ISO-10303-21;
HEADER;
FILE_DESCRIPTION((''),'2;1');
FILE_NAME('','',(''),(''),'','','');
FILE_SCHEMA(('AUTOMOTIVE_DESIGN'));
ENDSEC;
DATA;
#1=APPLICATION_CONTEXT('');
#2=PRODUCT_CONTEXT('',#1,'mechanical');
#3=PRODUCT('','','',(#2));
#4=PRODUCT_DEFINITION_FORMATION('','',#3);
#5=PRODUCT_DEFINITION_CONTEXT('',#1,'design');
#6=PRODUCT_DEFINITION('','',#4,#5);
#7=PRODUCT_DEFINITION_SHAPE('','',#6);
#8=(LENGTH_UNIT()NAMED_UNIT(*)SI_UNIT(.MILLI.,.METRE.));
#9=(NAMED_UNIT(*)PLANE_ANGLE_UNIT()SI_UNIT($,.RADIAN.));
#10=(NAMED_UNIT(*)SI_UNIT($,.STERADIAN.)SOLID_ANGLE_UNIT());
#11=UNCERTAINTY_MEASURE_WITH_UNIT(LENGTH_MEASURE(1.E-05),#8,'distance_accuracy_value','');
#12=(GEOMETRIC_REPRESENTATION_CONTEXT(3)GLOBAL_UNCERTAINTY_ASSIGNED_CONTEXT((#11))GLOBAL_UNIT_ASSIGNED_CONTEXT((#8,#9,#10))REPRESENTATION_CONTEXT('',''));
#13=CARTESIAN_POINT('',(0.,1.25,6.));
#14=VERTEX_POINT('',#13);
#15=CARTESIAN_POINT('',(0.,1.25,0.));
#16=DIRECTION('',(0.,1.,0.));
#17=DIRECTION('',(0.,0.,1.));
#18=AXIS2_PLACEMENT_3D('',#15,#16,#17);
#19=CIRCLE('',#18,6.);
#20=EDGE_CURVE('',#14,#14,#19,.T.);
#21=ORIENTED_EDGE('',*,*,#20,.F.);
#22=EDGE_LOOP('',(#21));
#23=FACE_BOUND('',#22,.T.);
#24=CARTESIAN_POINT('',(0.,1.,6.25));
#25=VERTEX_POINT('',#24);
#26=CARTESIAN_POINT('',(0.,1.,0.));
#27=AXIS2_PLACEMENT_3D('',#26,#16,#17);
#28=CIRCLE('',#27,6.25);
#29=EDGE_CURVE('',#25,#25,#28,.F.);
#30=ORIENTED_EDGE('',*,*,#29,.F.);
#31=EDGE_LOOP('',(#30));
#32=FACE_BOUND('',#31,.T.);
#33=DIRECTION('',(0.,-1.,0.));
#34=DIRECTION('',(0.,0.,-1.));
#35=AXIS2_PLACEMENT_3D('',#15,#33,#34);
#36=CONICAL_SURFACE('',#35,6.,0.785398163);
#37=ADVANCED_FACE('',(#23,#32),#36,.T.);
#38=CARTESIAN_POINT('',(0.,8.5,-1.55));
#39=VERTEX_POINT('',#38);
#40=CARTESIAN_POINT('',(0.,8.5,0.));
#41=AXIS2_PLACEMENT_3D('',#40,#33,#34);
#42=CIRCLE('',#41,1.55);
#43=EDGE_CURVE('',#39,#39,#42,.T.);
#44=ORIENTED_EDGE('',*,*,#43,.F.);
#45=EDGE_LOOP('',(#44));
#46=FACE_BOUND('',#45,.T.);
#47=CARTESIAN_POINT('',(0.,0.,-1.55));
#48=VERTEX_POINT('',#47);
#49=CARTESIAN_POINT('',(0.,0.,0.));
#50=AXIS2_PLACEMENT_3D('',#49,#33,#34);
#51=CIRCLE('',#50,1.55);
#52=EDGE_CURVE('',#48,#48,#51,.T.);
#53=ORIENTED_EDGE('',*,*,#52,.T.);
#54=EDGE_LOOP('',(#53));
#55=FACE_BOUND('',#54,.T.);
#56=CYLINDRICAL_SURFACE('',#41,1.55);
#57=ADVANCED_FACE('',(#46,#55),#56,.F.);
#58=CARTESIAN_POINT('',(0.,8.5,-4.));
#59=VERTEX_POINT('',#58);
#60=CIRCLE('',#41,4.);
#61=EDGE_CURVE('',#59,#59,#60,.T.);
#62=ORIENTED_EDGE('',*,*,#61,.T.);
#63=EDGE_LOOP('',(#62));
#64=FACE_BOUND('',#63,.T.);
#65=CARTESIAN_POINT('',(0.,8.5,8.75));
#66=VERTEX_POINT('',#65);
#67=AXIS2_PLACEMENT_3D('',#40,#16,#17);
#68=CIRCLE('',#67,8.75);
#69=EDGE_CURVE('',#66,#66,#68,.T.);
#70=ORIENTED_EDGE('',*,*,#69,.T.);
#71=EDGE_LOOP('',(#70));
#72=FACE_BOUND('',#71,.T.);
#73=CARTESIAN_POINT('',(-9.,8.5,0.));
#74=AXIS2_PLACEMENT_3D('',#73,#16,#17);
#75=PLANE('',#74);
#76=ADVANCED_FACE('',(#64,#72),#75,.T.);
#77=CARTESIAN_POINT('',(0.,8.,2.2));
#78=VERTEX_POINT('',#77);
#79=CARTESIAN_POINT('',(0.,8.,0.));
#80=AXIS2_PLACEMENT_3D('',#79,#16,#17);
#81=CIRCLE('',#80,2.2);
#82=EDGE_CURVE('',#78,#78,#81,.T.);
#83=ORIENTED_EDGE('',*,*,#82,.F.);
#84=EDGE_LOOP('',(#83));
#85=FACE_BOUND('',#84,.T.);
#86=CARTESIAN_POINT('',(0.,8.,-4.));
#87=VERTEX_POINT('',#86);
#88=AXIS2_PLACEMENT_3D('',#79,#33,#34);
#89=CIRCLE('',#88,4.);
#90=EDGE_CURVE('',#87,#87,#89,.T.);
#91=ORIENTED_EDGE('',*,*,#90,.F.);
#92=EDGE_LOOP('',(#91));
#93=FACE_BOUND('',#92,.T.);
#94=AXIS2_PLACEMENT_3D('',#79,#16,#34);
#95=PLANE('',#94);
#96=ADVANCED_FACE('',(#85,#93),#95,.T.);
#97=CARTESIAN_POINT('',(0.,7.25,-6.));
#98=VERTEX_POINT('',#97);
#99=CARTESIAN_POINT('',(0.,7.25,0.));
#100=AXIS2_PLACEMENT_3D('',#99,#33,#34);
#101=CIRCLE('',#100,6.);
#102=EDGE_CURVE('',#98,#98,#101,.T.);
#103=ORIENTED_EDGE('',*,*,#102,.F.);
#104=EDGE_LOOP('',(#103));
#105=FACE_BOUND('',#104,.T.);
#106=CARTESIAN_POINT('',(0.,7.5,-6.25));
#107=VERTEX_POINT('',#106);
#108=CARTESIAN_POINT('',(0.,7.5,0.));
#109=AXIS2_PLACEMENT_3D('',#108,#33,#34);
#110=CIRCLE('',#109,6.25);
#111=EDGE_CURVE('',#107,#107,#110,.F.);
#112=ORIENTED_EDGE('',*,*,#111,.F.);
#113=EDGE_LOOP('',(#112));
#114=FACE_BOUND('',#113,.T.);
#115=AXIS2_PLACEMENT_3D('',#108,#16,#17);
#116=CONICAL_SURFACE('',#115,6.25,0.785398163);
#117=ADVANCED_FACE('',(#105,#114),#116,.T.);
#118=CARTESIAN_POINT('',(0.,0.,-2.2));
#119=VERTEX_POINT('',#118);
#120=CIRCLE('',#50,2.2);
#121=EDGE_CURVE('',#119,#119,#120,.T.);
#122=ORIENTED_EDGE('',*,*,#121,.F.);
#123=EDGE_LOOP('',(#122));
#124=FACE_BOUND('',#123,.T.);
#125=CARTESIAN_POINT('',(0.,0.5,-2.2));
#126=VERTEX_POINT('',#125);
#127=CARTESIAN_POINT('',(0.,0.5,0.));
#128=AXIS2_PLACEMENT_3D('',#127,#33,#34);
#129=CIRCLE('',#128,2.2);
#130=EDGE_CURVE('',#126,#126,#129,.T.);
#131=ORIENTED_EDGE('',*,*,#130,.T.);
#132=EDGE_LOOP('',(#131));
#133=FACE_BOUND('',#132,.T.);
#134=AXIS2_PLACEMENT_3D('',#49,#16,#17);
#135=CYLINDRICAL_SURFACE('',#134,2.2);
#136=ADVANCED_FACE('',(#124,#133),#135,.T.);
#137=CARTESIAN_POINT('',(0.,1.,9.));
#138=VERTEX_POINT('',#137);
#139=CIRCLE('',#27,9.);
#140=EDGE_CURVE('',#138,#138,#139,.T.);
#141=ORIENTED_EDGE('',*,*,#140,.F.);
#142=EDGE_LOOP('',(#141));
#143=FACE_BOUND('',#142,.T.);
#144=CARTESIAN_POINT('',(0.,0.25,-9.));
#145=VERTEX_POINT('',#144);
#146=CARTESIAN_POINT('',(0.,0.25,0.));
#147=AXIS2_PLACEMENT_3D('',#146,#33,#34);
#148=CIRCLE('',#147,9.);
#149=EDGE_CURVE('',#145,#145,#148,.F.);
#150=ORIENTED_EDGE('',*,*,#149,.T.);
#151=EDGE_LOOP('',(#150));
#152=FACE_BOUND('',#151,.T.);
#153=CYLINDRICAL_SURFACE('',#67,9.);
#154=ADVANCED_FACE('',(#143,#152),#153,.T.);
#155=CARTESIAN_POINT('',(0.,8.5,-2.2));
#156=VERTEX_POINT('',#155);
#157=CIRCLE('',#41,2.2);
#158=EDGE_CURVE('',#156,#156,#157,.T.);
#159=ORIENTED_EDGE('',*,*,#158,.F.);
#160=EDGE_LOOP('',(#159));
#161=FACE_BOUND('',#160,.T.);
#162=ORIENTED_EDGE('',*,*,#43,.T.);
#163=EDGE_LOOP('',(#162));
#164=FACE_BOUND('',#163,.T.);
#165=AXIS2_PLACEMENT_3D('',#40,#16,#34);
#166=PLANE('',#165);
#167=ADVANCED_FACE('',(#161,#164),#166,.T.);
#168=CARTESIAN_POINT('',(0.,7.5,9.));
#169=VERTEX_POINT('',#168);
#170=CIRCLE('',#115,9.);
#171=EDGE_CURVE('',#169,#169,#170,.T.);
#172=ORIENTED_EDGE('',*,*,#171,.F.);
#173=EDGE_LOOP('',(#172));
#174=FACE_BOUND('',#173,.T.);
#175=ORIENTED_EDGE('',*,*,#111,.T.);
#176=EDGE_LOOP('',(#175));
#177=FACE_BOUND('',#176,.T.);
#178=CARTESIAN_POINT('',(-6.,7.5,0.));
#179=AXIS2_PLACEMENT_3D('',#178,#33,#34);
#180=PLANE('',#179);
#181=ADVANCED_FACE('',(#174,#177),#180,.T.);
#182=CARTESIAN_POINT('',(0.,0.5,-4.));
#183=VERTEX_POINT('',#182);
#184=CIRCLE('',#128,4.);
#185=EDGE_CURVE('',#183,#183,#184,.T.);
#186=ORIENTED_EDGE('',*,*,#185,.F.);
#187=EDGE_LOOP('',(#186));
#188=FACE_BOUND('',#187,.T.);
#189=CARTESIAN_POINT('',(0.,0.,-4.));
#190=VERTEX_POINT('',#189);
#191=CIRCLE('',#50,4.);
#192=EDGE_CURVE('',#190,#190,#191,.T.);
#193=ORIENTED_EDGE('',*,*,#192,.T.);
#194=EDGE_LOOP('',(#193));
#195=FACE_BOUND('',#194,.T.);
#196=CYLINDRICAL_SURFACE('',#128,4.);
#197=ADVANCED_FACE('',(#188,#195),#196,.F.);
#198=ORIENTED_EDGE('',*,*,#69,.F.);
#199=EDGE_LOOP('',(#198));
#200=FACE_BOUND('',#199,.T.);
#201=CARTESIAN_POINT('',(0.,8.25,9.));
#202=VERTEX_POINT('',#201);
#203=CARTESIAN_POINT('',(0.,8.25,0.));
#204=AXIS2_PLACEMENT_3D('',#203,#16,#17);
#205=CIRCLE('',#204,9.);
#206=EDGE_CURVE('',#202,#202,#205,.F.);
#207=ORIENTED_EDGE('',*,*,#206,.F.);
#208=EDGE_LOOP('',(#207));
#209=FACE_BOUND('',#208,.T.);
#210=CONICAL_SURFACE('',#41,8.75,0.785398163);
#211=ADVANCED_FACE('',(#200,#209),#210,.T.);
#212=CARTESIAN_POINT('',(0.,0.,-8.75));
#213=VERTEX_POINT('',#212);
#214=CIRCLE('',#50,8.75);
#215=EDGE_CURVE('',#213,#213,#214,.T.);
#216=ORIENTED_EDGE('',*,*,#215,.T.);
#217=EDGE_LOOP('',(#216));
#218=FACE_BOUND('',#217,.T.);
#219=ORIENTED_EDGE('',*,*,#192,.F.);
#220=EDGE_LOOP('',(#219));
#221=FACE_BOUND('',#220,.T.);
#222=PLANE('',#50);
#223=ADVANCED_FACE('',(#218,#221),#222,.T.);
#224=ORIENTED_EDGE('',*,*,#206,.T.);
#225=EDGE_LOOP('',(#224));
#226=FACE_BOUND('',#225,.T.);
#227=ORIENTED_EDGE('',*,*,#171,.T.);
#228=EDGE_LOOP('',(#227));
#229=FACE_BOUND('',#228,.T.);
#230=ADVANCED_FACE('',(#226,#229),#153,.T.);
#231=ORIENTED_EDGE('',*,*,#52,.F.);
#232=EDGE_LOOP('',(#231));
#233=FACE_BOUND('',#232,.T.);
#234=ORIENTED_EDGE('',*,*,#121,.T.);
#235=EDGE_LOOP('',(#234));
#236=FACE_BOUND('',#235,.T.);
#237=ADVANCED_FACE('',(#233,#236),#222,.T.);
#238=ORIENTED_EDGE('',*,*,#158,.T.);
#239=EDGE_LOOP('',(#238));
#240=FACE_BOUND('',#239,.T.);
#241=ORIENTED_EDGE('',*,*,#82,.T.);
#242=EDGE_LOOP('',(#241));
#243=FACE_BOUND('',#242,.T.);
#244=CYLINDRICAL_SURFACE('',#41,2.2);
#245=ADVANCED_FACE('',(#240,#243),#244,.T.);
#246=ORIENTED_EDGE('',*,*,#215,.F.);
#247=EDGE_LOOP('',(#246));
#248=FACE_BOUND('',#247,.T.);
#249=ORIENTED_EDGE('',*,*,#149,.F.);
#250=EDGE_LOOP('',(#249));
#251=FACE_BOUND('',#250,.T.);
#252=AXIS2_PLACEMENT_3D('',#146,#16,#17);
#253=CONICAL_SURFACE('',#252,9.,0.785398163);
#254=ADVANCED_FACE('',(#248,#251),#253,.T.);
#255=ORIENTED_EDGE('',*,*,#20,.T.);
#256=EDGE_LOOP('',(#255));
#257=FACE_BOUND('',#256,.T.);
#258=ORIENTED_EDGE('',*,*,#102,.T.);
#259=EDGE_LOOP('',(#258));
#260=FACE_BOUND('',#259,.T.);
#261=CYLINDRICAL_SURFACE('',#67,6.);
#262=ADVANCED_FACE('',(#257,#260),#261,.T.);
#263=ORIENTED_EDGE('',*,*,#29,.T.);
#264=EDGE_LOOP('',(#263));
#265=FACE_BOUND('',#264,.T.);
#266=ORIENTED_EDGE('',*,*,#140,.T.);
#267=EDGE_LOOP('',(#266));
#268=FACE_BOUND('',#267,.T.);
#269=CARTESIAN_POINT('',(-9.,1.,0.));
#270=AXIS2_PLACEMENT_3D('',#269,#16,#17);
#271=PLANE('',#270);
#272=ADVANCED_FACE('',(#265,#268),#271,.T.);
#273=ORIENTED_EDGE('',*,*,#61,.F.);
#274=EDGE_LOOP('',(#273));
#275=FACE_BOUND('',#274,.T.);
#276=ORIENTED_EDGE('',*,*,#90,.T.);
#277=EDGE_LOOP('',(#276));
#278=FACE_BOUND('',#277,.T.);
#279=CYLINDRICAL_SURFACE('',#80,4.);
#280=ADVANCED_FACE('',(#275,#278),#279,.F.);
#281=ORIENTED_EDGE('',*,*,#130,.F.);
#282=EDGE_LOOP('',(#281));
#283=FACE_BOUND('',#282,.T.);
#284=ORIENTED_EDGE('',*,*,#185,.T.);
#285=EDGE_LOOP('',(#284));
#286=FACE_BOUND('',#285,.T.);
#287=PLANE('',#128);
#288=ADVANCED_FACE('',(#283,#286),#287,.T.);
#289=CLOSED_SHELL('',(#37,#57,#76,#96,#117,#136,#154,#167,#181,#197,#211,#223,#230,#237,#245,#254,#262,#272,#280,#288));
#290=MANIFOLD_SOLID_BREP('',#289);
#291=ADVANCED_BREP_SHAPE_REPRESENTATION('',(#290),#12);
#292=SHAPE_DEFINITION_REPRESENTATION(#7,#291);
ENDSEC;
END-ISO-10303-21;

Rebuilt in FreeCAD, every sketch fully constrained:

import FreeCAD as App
import Part
import Sketcher
from FreeCAD import Vector


def edges_at(feature, points):
    """Names of the edges that pass closest to the given points."""
    edges = feature.Shape.Edges
    near = lambda p: min(range(len(edges)), key=lambda i: edges[i].distToShape(Part.Vertex(*p))[0])
    return sorted({f"Edge{near(p) + 1}" for p in points})

doc = App.newDocument("Part")
body = doc.addObject("PartDesign::Body", "Body")

# Sketch on XY plane
sketch1 = doc.addObject("Sketcher::SketchObject", "Sketch")
body.addObject(sketch1)
sketch1.AttachmentSupport = (doc.XY_Plane, [""])
sketch1.MapMode = "FlatFace"
sketch1.addGeometry(Part.LineSegment(Vector(-9, 0, 0), Vector(0, 0, 0)), False)
sketch1.addGeometry(Part.LineSegment(Vector(0, 0, 0), Vector(0, 8.5, 0)), False)
sketch1.addGeometry(Part.LineSegment(Vector(0, 8.5, 0), Vector(-9, 8.5, 0)), False)
sketch1.addGeometry(Part.LineSegment(Vector(-9, 8.5, 0), Vector(-9, 7.5, 0)), False)
sketch1.addGeometry(Part.LineSegment(Vector(-9, 7.5, 0), Vector(-6, 7.5, 0)), False)
sketch1.addGeometry(Part.LineSegment(Vector(-6, 7.5, 0), Vector(-6, 1, 0)), False)
sketch1.addGeometry(Part.LineSegment(Vector(-6, 1, 0), Vector(-9, 1, 0)), False)
sketch1.addGeometry(Part.LineSegment(Vector(-9, 1, 0), Vector(-9, 0, 0)), False)
sketch1.addConstraint(Sketcher.Constraint("Coincident", 0, 2, 1, 1))
sketch1.addConstraint(Sketcher.Constraint("Coincident", 1, 2, 2, 1))
sketch1.addConstraint(Sketcher.Constraint("Coincident", 2, 2, 3, 1))
sketch1.addConstraint(Sketcher.Constraint("Coincident", 3, 2, 4, 1))
sketch1.addConstraint(Sketcher.Constraint("Coincident", 4, 2, 5, 1))
sketch1.addConstraint(Sketcher.Constraint("Coincident", 5, 2, 6, 1))
sketch1.addConstraint(Sketcher.Constraint("Coincident", 6, 2, 7, 1))
sketch1.addConstraint(Sketcher.Constraint("Coincident", 7, 2, 0, 1))
sketch1.addConstraint(Sketcher.Constraint("Horizontal", 0))
sketch1.addConstraint(Sketcher.Constraint("Vertical", 1))
sketch1.addConstraint(Sketcher.Constraint("Horizontal", 2))
sketch1.addConstraint(Sketcher.Constraint("Vertical", 3))
sketch1.addConstraint(Sketcher.Constraint("Horizontal", 4))
sketch1.addConstraint(Sketcher.Constraint("Vertical", 5))
sketch1.addConstraint(Sketcher.Constraint("Horizontal", 6))
sketch1.addConstraint(Sketcher.Constraint("Vertical", 7))
sketch1.addConstraint(Sketcher.Constraint("Coincident", 0, 2, -1, 1))
sketch1.addConstraint(Sketcher.Constraint("Vertical", 3, 2, 6, 2))
sketch1.addConstraint(Sketcher.Constraint("Equal", 3, 7))
sketch1.addConstraint(Sketcher.Constraint("DistanceX", 0, 1, 0, 2, 9.0))
sketch1.addConstraint(Sketcher.Constraint("DistanceX", 4, 1, 4, 2, 3.0))
sketch1.addConstraint(Sketcher.Constraint("DistanceY", 3, 2, 3, 1, 1.0))
sketch1.addConstraint(Sketcher.Constraint("DistanceY", 1, 1, 1, 2, 8.5))
revolution = doc.addObject("PartDesign::Revolution", "Revolution")
body.addObject(revolution)
revolution.Profile = sketch1
revolution.ReferenceAxis = (sketch1, ["V_Axis"])
revolution.Angle = 360

# Sketch on XZ plane
sketch2 = doc.addObject("Sketcher::SketchObject", "Sketch001")
body.addObject(sketch2)
sketch2.AttachmentSupport = (doc.XZ_Plane, [""])
sketch2.MapMode = "FlatFace"
sketch2.addGeometry(Part.Circle(Vector(0, 0, 0), Vector(0, 0, 1), 4), False)
sketch2.addConstraint(Sketcher.Constraint("Coincident", 0, 3, -1, 1))
sketch2.addConstraint(Sketcher.Constraint("Diameter", 0, 8.0))
pocket1 = doc.addObject("PartDesign::Pocket", "Pocket")
body.addObject(pocket1)
pocket1.Profile = sketch2
pocket1.Length = 0.5

# Sketch on XZ plane
sketch3 = doc.addObject("Sketcher::SketchObject", "Sketch002")
body.addObject(sketch3)
sketch3.AttachmentSupport = (doc.XZ_Plane, [""])
sketch3.MapMode = "FlatFace"
sketch3.AttachmentOffset = App.Placement(Vector(0, 0, -0.5), App.Rotation())
sketch3.addGeometry(Part.Circle(Vector(0, 0, 0), Vector(0, 0, 1), 2.2), False)
sketch3.addConstraint(Sketcher.Constraint("Coincident", 0, 3, -1, 1))
sketch3.addConstraint(Sketcher.Constraint("Diameter", 0, 4.4))
pad1 = doc.addObject("PartDesign::Pad", "Pad")
body.addObject(pad1)
pad1.Profile = sketch3
pad1.Length = 0.5
doc.recompute()

datumplane = doc.addObject("PartDesign::Plane", "DatumPlane")
body.addObject(datumplane)
datumplane.AttachmentSupport = (doc.XZ_Plane, [""])
datumplane.MapMode = "FlatFace"
datumplane.AttachmentOffset = App.Placement(Vector(0, 0, -4.25), App.Rotation())
mirrored = doc.addObject("PartDesign::Mirrored", "Mirrored")
body.addObject(mirrored)
mirrored.Originals = [pocket1, pad1]
mirrored.MirrorPlane = (datumplane, [""])
body.Tip = mirrored

# Sketch on XZ plane
sketch4 = doc.addObject("Sketcher::SketchObject", "Sketch003")
body.addObject(sketch4)
sketch4.AttachmentSupport = (doc.XZ_Plane, [""])
sketch4.MapMode = "FlatFace"
sketch4.addGeometry(Part.Circle(Vector(0, 0, 0), Vector(0, 0, 1), 1.6), False)
sketch4.addConstraint(Sketcher.Constraint("Coincident", 0, 3, -1, 1))
sketch4.addConstraint(Sketcher.Constraint("Diameter", 0, 3.1))
pocket2 = doc.addObject("PartDesign::Pocket", "Pocket001")
body.addObject(pocket2)
pocket2.Profile = sketch4
pocket2.Type = "ThroughAll"
doc.recompute()

chamfer = doc.addObject("PartDesign::Chamfer", "Chamfer")
body.addObject(chamfer)
chamfer.Base = (pocket2, edges_at(pocket2, [
    (0, 8.5, -9),
    (0, 7.5, -6),
    (0, 1, -6),
    (0, 0, -9),
]))
chamfer.Size = 0.25

doc.recompute()
